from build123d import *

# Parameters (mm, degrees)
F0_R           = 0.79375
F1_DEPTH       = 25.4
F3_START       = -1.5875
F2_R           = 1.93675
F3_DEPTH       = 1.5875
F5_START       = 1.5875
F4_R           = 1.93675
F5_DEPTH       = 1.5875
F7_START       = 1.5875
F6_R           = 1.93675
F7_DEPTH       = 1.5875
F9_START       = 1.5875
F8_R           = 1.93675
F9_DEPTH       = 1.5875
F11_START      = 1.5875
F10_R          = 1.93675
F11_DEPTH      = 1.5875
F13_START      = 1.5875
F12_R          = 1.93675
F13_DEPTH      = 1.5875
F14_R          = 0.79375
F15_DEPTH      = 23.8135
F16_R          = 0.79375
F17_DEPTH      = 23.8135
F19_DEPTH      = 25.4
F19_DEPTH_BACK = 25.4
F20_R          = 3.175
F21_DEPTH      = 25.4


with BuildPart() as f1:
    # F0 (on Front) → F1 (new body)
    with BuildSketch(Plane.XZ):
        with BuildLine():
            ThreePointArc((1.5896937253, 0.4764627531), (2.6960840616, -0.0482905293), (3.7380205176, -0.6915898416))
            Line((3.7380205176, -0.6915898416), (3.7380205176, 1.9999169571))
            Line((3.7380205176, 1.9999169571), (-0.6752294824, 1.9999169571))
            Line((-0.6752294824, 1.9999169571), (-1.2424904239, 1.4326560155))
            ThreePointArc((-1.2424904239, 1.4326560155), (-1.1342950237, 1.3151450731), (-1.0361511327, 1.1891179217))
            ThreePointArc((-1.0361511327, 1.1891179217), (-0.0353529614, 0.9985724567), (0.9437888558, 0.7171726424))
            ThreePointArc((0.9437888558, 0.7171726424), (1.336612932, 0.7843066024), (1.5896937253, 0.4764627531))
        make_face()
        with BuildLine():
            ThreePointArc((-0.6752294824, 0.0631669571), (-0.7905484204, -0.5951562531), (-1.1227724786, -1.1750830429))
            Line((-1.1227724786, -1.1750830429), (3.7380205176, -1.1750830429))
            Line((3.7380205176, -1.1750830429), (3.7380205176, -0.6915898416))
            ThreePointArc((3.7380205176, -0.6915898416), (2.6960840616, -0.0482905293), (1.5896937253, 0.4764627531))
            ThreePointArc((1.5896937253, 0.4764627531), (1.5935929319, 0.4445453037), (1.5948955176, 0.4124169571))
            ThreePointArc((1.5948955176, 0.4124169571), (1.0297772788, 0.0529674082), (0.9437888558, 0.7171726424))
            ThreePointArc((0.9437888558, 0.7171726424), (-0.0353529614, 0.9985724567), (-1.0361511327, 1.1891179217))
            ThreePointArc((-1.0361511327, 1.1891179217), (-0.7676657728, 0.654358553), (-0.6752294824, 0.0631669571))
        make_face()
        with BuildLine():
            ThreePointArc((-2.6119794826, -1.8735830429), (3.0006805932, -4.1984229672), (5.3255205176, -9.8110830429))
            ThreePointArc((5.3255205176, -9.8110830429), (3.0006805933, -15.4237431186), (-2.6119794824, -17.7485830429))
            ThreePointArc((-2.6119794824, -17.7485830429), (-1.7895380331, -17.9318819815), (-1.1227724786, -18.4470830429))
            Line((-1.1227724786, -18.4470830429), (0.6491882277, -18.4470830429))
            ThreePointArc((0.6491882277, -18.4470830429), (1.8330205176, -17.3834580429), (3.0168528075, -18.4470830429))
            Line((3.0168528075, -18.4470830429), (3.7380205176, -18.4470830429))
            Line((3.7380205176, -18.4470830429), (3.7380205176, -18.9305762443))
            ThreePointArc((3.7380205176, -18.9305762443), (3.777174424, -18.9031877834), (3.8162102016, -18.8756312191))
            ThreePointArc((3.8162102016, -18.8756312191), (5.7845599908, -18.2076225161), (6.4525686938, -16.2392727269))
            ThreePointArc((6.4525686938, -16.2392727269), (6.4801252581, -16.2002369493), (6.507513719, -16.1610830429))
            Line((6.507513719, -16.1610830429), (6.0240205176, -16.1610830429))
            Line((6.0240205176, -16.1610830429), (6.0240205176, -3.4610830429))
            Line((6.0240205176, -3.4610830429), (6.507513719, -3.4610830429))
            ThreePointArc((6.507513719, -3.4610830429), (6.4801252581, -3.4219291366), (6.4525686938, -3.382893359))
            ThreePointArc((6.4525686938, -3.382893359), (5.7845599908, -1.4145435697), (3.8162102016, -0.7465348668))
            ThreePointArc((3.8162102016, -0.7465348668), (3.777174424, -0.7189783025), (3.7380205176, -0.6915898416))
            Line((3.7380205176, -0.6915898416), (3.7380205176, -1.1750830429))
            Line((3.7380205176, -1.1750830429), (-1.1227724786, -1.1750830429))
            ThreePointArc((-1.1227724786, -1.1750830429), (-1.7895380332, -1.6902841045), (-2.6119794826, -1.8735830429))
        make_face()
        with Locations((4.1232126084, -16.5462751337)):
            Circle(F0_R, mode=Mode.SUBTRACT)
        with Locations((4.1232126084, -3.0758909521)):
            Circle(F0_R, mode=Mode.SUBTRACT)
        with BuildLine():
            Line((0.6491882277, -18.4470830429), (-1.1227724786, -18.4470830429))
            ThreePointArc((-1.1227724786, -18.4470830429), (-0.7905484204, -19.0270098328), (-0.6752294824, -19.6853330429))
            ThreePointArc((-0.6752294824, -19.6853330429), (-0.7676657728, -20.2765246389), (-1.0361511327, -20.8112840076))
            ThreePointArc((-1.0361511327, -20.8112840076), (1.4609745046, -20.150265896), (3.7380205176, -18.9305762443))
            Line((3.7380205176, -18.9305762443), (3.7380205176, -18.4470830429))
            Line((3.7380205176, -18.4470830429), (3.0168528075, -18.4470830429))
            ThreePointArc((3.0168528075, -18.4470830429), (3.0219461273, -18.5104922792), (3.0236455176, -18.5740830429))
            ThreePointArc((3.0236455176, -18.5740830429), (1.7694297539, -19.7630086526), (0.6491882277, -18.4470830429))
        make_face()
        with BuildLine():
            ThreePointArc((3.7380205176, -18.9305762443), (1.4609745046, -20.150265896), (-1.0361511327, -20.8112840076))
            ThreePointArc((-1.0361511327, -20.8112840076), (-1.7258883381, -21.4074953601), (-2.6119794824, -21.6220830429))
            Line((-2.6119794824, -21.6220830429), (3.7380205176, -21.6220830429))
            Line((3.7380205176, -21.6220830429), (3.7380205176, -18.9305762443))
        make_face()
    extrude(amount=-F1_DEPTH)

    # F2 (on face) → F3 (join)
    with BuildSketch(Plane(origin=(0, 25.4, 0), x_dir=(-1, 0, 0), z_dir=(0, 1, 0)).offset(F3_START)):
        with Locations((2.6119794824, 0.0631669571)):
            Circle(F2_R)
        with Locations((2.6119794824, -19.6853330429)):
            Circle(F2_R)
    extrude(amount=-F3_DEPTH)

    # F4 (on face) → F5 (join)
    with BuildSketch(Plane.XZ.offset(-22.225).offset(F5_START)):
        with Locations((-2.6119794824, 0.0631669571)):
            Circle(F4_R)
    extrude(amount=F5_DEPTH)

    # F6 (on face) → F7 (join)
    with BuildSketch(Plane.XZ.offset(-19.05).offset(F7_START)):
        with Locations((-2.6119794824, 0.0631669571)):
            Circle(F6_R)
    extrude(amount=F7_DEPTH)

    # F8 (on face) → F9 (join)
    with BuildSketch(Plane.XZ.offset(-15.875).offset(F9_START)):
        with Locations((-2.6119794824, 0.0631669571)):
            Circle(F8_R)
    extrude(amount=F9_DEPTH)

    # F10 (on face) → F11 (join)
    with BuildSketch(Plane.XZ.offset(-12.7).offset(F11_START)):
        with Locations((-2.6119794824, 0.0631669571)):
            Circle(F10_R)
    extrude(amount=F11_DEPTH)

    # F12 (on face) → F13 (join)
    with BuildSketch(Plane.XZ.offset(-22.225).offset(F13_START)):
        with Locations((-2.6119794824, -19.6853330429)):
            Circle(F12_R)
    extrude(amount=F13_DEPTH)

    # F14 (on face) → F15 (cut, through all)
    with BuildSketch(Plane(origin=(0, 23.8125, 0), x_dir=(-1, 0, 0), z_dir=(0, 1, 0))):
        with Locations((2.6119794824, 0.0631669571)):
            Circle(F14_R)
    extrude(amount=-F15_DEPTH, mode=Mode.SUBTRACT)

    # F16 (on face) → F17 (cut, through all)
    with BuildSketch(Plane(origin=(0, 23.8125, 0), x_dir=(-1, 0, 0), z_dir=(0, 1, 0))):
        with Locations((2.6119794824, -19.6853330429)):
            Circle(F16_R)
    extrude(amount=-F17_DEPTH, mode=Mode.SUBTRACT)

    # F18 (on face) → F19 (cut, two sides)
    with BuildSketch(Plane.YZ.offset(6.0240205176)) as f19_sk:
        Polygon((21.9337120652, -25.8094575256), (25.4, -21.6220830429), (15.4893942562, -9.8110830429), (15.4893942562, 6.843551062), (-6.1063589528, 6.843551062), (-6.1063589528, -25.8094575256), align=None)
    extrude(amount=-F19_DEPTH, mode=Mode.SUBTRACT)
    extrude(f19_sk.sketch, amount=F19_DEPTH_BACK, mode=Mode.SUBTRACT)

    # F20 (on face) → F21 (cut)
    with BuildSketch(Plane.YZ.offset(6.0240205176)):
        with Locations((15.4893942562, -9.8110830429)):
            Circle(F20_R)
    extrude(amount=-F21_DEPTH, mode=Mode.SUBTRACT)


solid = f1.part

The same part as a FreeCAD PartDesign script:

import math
import FreeCAD as App
import Part
import Sketcher

V = App.Vector
Q = App.Units.Quantity


def add_polygon(sketch, points):
    """Adds a closed chain of lines whose ends are joined by coincident constraints."""
    first, n = sketch.GeometryCount, len(points)
    for a, b in zip(points, points[1:] + points[:1]):
        sketch.addGeometry(Part.LineSegment(App.Vector(*a, 0), App.Vector(*b, 0)), False)
    for i in range(n):
        sketch.addConstraint(Sketcher.Constraint("Coincident", first + i, 2, first + (i + 1) % n, 1))

doc = App.newDocument("Part")
params = doc.addObject("Spreadsheet::Sheet", "Params")
for row, (alias, value) in enumerate([
    ("sketch1_diameter", "0.0625 in"),
    ("sketch1_height", "0.5 in"),
    ("sketch1_radius", "0.3125 in"),
    ("sketch1_radius2", "0.4374999 in"),
    ("sketch1_radius3", "0.046875 in"),
    ("pad1_length", "1 in"),
    ("pad2_length", "0.0625 in"),
    ("pad3_length", "0.0625 in"),
    ("pad4_length", "0.0625 in"),
    ("pad5_length", "0.0625 in"),
    ("pad6_length", "0.0625 in"),
    ("pad7_length", "0.0625 in"),
    ("sketch8_diameter", "0.0625 in"),
    ("sketch9_diameter", "0.0625 in"),
    ("sketch11_diameter", "0.25 in"),
    ("pocket4_length", "1 in"),
], start=1):
    params.set(f"A{row}", alias)
    params.set(f"B{row}", "=" + value)
    params.setAlias(f"B{row}", alias)

body = doc.addObject("PartDesign::Body", "Body")

sketch1 = body.newObject("Sketcher::SketchObject", "Sketch")
sketch1.AttachmentSupport = (doc.getObject("XZ_Plane"), [""])
sketch1.MapMode = "FlatFace"
sketch1.addGeometry([
    Part.LineSegment(V(3.74, 2, 0), V(-0.68, 2, 0)),
    Part.LineSegment(V(-0.68, 2, 0), V(-1.24, 1.43, 0)),
    Part.ArcOfCircle(Part.Circle(V(-2.61, 0.06, 0), V(0, 0, 1), 1.94), math.radians(35.55), math.radians(45)),
    Part.ArcOfCircle(Part.Circle(V(-2.61, 0.06, 0), V(0, 0, 1), 1.94), math.radians(0), math.radians(36)),
    Part.ArcOfCircle(Part.Circle(V(-2.61, 0.06, 0), V(0, 0, 1), 1.94), math.radians(-40), math.radians(0)),
    Part.ArcOfCircle(Part.Circle(V(-2.61, 0.06, 0), V(0, 0, 1), 1.94), math.radians(-90), math.radians(-40)),
    Part.ArcOfCircle(Part.Circle(V(-2.61, -9.81, 0), V(0, 0, 1), 7.94), math.radians(0), math.radians(90)),
    Part.ArcOfCircle(Part.Circle(V(-2.61, -9.81, 0), V(0, 0, 1), 7.94), math.radians(-90), math.radians(0)),
    Part.ArcOfCircle(Part.Circle(V(-2.61, -19.69, 0), V(0, 0, 1), 1.94), math.radians(40), math.radians(90)),
    Part.ArcOfCircle(Part.Circle(V(-2.61, -19.69, 0), V(0, 0, 1), 1.94), math.radians(0), math.radians(40)),
    Part.ArcOfCircle(Part.Circle(V(-2.61, -19.69, 0), V(0, 0, 1), 1.94), math.radians(-36), math.radians(0)),
    Part.ArcOfCircle(Part.Circle(V(-2.61, -19.69, 0), V(0, 0, 1), 1.94), math.radians(-90), math.radians(-36)),
    Part.LineSegment(V(-2.61, -21.62, 0), V(3.74, -21.62, 0)),
    Part.LineSegment(V(3.74, -21.62, 0), V(3.74, -18.93, 0)),
    Part.ArcOfCircle(Part.Circle(V(-2.61, -9.81, 0), V(0, 0, 1), 11.11), math.radians(-55.15), math.radians(-54.66)),
    Part.ArcOfCircle(Part.Circle(V(4.12, -16.55, 0), V(0, 0, 1), 2.35), math.radians(-98), math.radians(8)),
    Part.ArcOfCircle(Part.Circle(V(-2.61, -9.81, 0), V(0, 0, 1), 11.11), math.radians(-35.34), math.radians(-34.85)),
    Part.LineSegment(V(6.51, -16.16, 0), V(6.02, -16.16, 0)),
    Part.LineSegment(V(6.02, -16.16, 0), V(6.02, -3.46, 0)),
    Part.LineSegment(V(6.02, -3.46, 0), V(6.51, -3.46, 0)),
    Part.ArcOfCircle(Part.Circle(V(-2.61, -9.81, 0), V(0, 0, 1), 11.11), math.radians(34.85), math.radians(35.34)),
    Part.ArcOfCircle(Part.Circle(V(4.12, -3.08, 0), V(0, 0, 1), 2.35), math.radians(-8), math.radians(98)),
    Part.ArcOfCircle(Part.Circle(V(-2.61, -9.81, 0), V(0, 0, 1), 11.11), math.radians(54.66), math.radians(55.15)),
    Part.LineSegment(V(3.74, -0.69, 0), V(3.74, 2, 0)),
    Part.ArcOfCircle(Part.Circle(V(1.83, -18.57, 0), V(0, 0, 1), 1.19), math.radians(6), math.radians(174)),
    Part.ArcOfCircle(Part.Circle(V(1.83, -18.57, 0), V(0, 0, 1), 1.19), math.radians(0), math.radians(6.12)),
    Part.ArcOfCircle(Part.Circle(V(1.83, -18.57, 0), V(0, 0, 1), 1.19), math.radians(174), math.radians(360)),
    Part.Circle(V(4.12, -16.55, 0), V(0, 0, 1), 0.79),
    Part.ArcOfCircle(Part.Circle(V(1.2, 0.41, 0), V(0, 0, 1), 0.4), math.radians(9), math.radians(130)),
    Part.ArcOfCircle(Part.Circle(V(1.2, 0.41, 0), V(0, 0, 1), 0.4), math.radians(0), math.radians(9.29)),
    Part.ArcOfCircle(Part.Circle(V(1.2, 0.41, 0), V(0, 0, 1), 0.4), math.radians(130), math.radians(360)),
    Part.Circle(V(4.12, -3.08, 0), V(0, 0, 1), 0.79),
], False)
sketch1.addConstraint([
    Sketcher.Constraint("Coincident", 0, 2, 1, 1),
    Sketcher.Constraint("Coincident", 1, 2, 2, 2),
    Sketcher.Constraint("Tangent", 2, 1, 3, 2),
    Sketcher.Constraint("Tangent", 3, 1, 4, 2),
    Sketcher.Constraint("Tangent", 4, 1, 5, 2),
    Sketcher.Constraint("Tangent", 5, 1, 6, 2),
    Sketcher.Constraint("Tangent", 6, 1, 7, 2),
    Sketcher.Constraint("Tangent", 7, 1, 8, 2),
    Sketcher.Constraint("Tangent", 8, 1, 9, 2),
    Sketcher.Constraint("Tangent", 9, 1, 10, 2),
    Sketcher.Constraint("Tangent", 10, 1, 11, 2),
    Sketcher.Constraint("Tangent", 11, 1, 12, 1),
    Sketcher.Constraint("Coincident", 12, 2, 13, 1),
    Sketcher.Constraint("Coincident", 13, 2, 14, 1),
    Sketcher.Constraint("Coincident", 14, 2, 15, 1),
    Sketcher.Constraint("Coincident", 15, 2, 16, 1),
    Sketcher.Constraint("Coincident", 16, 2, 17, 1),
    Sketcher.Constraint("Coincident", 17, 2, 18, 1),
    Sketcher.Constraint("Coincident", 18, 2, 19, 1),
    Sketcher.Constraint("Coincident", 19, 2, 20, 1),
    Sketcher.Constraint("Coincident", 20, 2, 21, 1),
    Sketcher.Constraint("Coincident", 21, 2, 22, 1),
    Sketcher.Constraint("Coincident", 22, 2, 23, 1),
    Sketcher.Constraint("Coincident", 23, 2, 0, 1),
    Sketcher.Constraint("Tangent", 24, 1, 25, 2),
    Sketcher.Constraint("Tangent", 25, 1, 26, 2),
    Sketcher.Constraint("Tangent", 26, 1, 24, 2),
    Sketcher.Constraint("Tangent", 28, 1, 29, 2),
    Sketcher.Constraint("Tangent", 29, 1, 30, 2),
    Sketcher.Constraint("Tangent", 30, 1, 28, 2),
    Sketcher.Constraint("Horizontal", 0),
    Sketcher.Constraint("Horizontal", 12),
    Sketcher.Constraint("Vertical", 13),
    Sketcher.Constraint("Horizontal", 17),
    Sketcher.Constraint("Vertical", 18),
    Sketcher.Constraint("Horizontal", 19),
    Sketcher.Constraint("Vertical", 23),
    Sketcher.Constraint("Coincident", 4, 3, 2, 3),
    Sketcher.Constraint("Coincident", 10, 3, 8, 3),
    Sketcher.Constraint("Coincident", 14, 3, 6, 3),
    Sketcher.Constraint("Coincident", 16, 3, 6, 3),
    Sketcher.Constraint("Coincident", 20, 3, 6, 3),
    Sketcher.Constraint("Coincident", 22, 3, 6, 3),
    Sketcher.Constraint("Coincident", 27, 3, 15, 3),
    Sketcher.Constraint("Coincident", 31, 3, 21, 3),
    Sketcher.Constraint("Equal", 4, 5),
    Sketcher.Constraint("Equal", 6, 7),
    Sketcher.Constraint("Equal", 5, 8),
    Sketcher.Constraint("Equal", 10, 11),
    Sketcher.Constraint("Equal", 14, 16),
    Sketcher.Constraint("Equal", 15, 21),
    Sketcher.Constraint("Equal", 16, 22),
    Sketcher.Constraint("Equal", 27, 31),
    Sketcher.Constraint("Horizontal", 5, 3, 3, 1),
    Sketcher.Constraint("Horizontal", 20, 3, 6, 1),
    Sketcher.Constraint("Horizontal", 11, 3, 9, 1),
    Sketcher.Constraint("Horizontal", 8, 1, 24, 1),
    Sketcher.Constraint("Horizontal", 26, 3, 25, 1),
    Sketcher.Constraint("Horizontal", 24, 1, 26, 1),
    Sketcher.Constraint("Horizontal", 30, 3, 29, 1),
    Sketcher.Constraint("Vertical", 5, 3, 6, 3),
    Sketcher.Constraint("Vertical", 7, 3, 8, 3),
    Sketcher.Constraint("Vertical", 15, 3, 21, 3),
    Sketcher.Constraint("Vertical", 0, 2, 3, 1),
    Sketcher.Constraint("Vertical", 4, 1, 8, 1),
    Sketcher.Constraint("Vertical", 2, 1, 10, 1),
    Sketcher.Constraint("Vertical", 16, 2, 19, 2),
    Sketcher.Constraint("Vertical", 15, 2, 20, 2),
    Sketcher.Constraint("Vertical", 14, 2, 21, 2),
    Sketcher.Constraint("Vertical", 13, 2, 22, 2),
    Sketcher.Constraint("Equal", 13, 23),
    Sketcher.Constraint("Diameter", 27, Q("0.0625 in")),
    Sketcher.Constraint("DistanceY", 18, 1, 18, 2, Q("0.5 in")),
    Sketcher.Constraint("Angle", 1, Q("-135 deg")),
    Sketcher.Constraint("Radius", 6, Q("0.3125 in")),
    Sketcher.Constraint("Radius", 14, Q("0.4374999 in")),
    Sketcher.Constraint("Radius", 24, Q("0.046875 in")),
    Sketcher.Constraint("Radius", 28, Q("0.015625 in")),
    Sketcher.Constraint("DistanceX", 12, 1, 12, 2, Q("0.25 in")),
    Sketcher.Constraint("Radius", 15, Q("0.0925 in")),
    Sketcher.Constraint("DistanceX", 28, 3, 22, 2, Q("0.1 in")),
    Sketcher.Constraint("DistanceY", 12, 2, 25, 3, Q("0.12 in")),
    Sketcher.Constraint("DistanceX", 28, 3, 18, 2, Q("0.19 in")),
    Sketcher.Constraint("Radius", 2, Q("1.93675 mm")),
    Sketcher.Constraint("DistanceX", 9, 3, 24, 3, Q("0.175 in")),
    Sketcher.Constraint("DistanceY", 29, 3, 0, 2, Q("0.0625 in")),
    Sketcher.Constraint("DistanceY", 25, 3, 24, 1, Q("0.005 in")),
    Sketcher.Constraint("DistanceY", 2, 1, 0, 2, Q("0.810799 mm")),
    Sketcher.Constraint("DistanceY", 13, 2, 15, 3, Q("2.384301 mm")),
    Sketcher.Constraint("DistanceX", 15, 3, 16, 2, Q("2.384301 mm")),
    Sketcher.Constraint("DistanceX", 28, 1, 29, 1, Q("0.005202 mm")),
    Sketcher.Constraint("DistanceX", 2, 3, -1, 1, Q("2.611979 mm")),
    Sketcher.Constraint("DistanceY", 21, 3, -1, 1, Q("3.075891 mm")),
    Sketcher.Constraint("DistanceX", -1, 1, 30, 1, Q("0.943789 mm")),
])
sketch1.setExpression("Constraints[71]", "Params.sketch1_diameter")
sketch1.setExpression("Constraints[72]", "Params.sketch1_height")
sketch1.setExpression("Constraints[74]", "Params.sketch1_radius")
sketch1.setExpression("Constraints[75]", "Params.sketch1_radius2")
sketch1.setExpression("Constraints[76]", "Params.sketch1_radius3")
pad1 = body.newObject("PartDesign::Pad", "Pad")
pad1.Profile = sketch1
pad1.setExpression("Length", "Params.pad1_length")
pad1.Reversed = True

sketch2 = body.newObject("Sketcher::SketchObject", "Sketch001")
sketch2.AttachmentSupport = (doc.getObject("XZ_Plane"), [""])
sketch2.MapMode = "FlatFace"
sketch2.AttachmentOffset = App.Placement(V(0, 0, -0.9375 * 25.4), App.Rotation())
sketch2.addGeometry([
    Part.Circle(V(-2.6, 0.1, 0), V(0, 0, 1), 1.9),
    Part.Circle(V(-2.6, -19.7, 0), V(0, 0, 1), 1.9),
], False)
sketch2.addConstraint([
    Sketcher.Constraint("Equal", 0, 1),
    Sketcher.Constraint("Vertical", 0, 3, 1, 3),
    Sketcher.Constraint("Diameter", 0, Q("0.1525 in")),
    Sketcher.Constraint("DistanceY", 1, 3, 0, 3, Q("0.7775 in")),
    Sketcher.Constraint("DistanceX", 0, 3, -1, 1, Q("2.611979 mm")),
    Sketcher.Constraint("DistanceY", -1, 1, 0, 3, Q("0.063167 mm")),
])
pad2 = body.newObject("PartDesign::Pad", "Pad001")
pad2.Profile = sketch2
pad2.setExpression("Length", "Params.pad2_length")

sketch3 = body.newObject("Sketcher::SketchObject", "Sketch002")
sketch3.AttachmentSupport = (doc.getObject("XZ_Plane"), [""])
sketch3.MapMode = "FlatFace"
sketch3.AttachmentOffset = App.Placement(V(0, 0, -0.8125 * 25.4), App.Rotation())
sketch3.addGeometry(Part.Circle(V(-2.6, 0.1, 0), V(0, 0, 1), 1.9), False)
sketch3.addConstraint([
    Sketcher.Constraint("Diameter", 0, Q("0.1525 in")),
    Sketcher.Constraint("DistanceX", 0, 3, -1, 1, Q("2.611979 mm")),
    Sketcher.Constraint("DistanceY", -1, 1, 0, 3, Q("0.063167 mm")),
])
pad3 = body.newObject("PartDesign::Pad", "Pad002")
pad3.Profile = sketch3
pad3.setExpression("Length", "Params.pad3_length")

sketch4 = body.newObject("Sketcher::SketchObject", "Sketch003")
sketch4.AttachmentSupport = (doc.getObject("XZ_Plane"), [""])
sketch4.MapMode = "FlatFace"
sketch4.AttachmentOffset = App.Placement(V(0, 0, -0.6875 * 25.4), App.Rotation())
sketch4.addGeometry(Part.Circle(V(-2.6, 0.1, 0), V(0, 0, 1), 1.9), False)
sketch4.addConstraint([
    Sketcher.Constraint("Diameter", 0, Q("0.1525 in")),
    Sketcher.Constraint("DistanceX", 0, 3, -1, 1, Q("2.611979 mm")),
    Sketcher.Constraint("DistanceY", -1, 1, 0, 3, Q("0.063167 mm")),
])
pad4 = body.newObject("PartDesign::Pad", "Pad003")
pad4.Profile = sketch4
pad4.setExpression("Length", "Params.pad4_length")

sketch5 = body.newObject("Sketcher::SketchObject", "Sketch004")
sketch5.AttachmentSupport = (doc.getObject("XZ_Plane"), [""])
sketch5.MapMode = "FlatFace"
sketch5.AttachmentOffset = App.Placement(V(0, 0, -0.5625 * 25.4), App.Rotation())
sketch5.addGeometry(Part.Circle(V(-2.6, 0.1, 0), V(0, 0, 1), 1.9), False)
sketch5.addConstraint([
    Sketcher.Constraint("Diameter", 0, Q("0.1525 in")),
    Sketcher.Constraint("DistanceX", 0, 3, -1, 1, Q("2.611979 mm")),
    Sketcher.Constraint("DistanceY", -1, 1, 0, 3, Q("0.063167 mm")),
])
pad5 = body.newObject("PartDesign::Pad", "Pad004")
pad5.Profile = sketch5
pad5.setExpression("Length", "Params.pad5_length")

sketch6 = body.newObject("Sketcher::SketchObject", "Sketch005")
sketch6.AttachmentSupport = (doc.getObject("XZ_Plane"), [""])
sketch6.MapMode = "FlatFace"
sketch6.AttachmentOffset = App.Placement(V(0, 0, -0.4375 * 25.4), App.Rotation())
sketch6.addGeometry(Part.Circle(V(-2.6, 0.1, 0), V(0, 0, 1), 1.9), False)
sketch6.addConstraint([
    Sketcher.Constraint("Diameter", 0, Q("0.1525 in")),
    Sketcher.Constraint("DistanceX", 0, 3, -1, 1, Q("2.611979 mm")),
    Sketcher.Constraint("DistanceY", -1, 1, 0, 3, Q("0.063167 mm")),
])
pad6 = body.newObject("PartDesign::Pad", "Pad005")
pad6.Profile = sketch6
pad6.setExpression("Length", "Params.pad6_length")

sketch7 = body.newObject("Sketcher::SketchObject", "Sketch006")
sketch7.AttachmentSupport = (doc.getObject("XZ_Plane"), [""])
sketch7.MapMode = "FlatFace"
sketch7.AttachmentOffset = App.Placement(V(0, 0, -0.8125 * 25.4), App.Rotation())
sketch7.addGeometry(Part.Circle(V(-2.6, -19.7, 0), V(0, 0, 1), 1.9), False)
sketch7.addConstraint([
    Sketcher.Constraint("Diameter", 0, Q("0.1525 in")),
    Sketcher.Constraint("DistanceX", 0, 3, -1, 1, Q("2.611979 mm")),
    Sketcher.Constraint("DistanceY", 0, 3, -1, 1, Q("19.685333 mm")),
])
pad7 = body.newObject("PartDesign::Pad", "Pad006")
pad7.Profile = sketch7
pad7.setExpression("Length", "Params.pad7_length")

sketch8 = body.newObject("Sketcher::SketchObject", "Sketch007")
sketch8.AttachmentSupport = (doc.getObject("XZ_Plane"), [""])
sketch8.MapMode = "FlatFace"
sketch8.AttachmentOffset = App.Placement(V(0, 0, -0.9375 * 25.4), App.Rotation())
sketch8.addGeometry(Part.Circle(V(-2.6, 0.1, 0), V(0, 0, 1), 0.8), False)
sketch8.addConstraint([
    Sketcher.Constraint("Diameter", 0, Q("0.0625 in")),
    Sketcher.Constraint("DistanceX", 0, 3, -1, 1, Q("2.611979 mm")),
    Sketcher.Constraint("DistanceY", -1, 1, 0, 3, Q("0.063167 mm")),
])
sketch8.setExpression("Constraints[0]", "Params.sketch8_diameter")
pocket1 = body.newObject("PartDesign::Pocket", "Pocket")
pocket1.Profile = sketch8
pocket1.Type = "ThroughAll"
pocket1.Reversed = True

sketch9 = body.newObject("Sketcher::SketchObject", "Sketch008")
sketch9.AttachmentSupport = (doc.getObject("XZ_Plane"), [""])
sketch9.MapMode = "FlatFace"
sketch9.AttachmentOffset = App.Placement(V(0, 0, -0.9375 * 25.4), App.Rotation())
sketch9.addGeometry(Part.Circle(V(-2.6, -19.7, 0), V(0, 0, 1), 0.8), False)
sketch9.addConstraint([
    Sketcher.Constraint("Diameter", 0, Q("0.0625 in")),
    Sketcher.Constraint("DistanceX", 0, 3, -1, 1, Q("2.611979 mm")),
    Sketcher.Constraint("DistanceY", 0, 3, -1, 1, Q("19.685333 mm")),
])
sketch9.setExpression("Constraints[0]", "Params.sketch9_diameter")
pocket2 = body.newObject("PartDesign::Pocket", "Pocket001")
pocket2.Profile = sketch9
pocket2.Type = "ThroughAll"
pocket2.Reversed = True

sketch10 = body.newObject("Sketcher::SketchObject", "Sketch009")
sketch10.AttachmentSupport = (doc.getObject("YZ_Plane"), [""])
sketch10.MapMode = "FlatFace"
sketch10.AttachmentOffset = App.Placement(V(0, 0, 6.024021), App.Rotation())
add_polygon(sketch10, [(22, -26), (25, -22), (15, -10), (15, 7), (-6, 7), (-6, -26)])
sketch10.addConstraint([
    Sketcher.Constraint("Vertical", 2),
    Sketcher.Constraint("Horizontal", 3),
    Sketcher.Constraint("Vertical", 4),
    Sketcher.Constraint("Horizontal", 5),
    Sketcher.Constraint("DistanceX", -1, 1, 0, 2, Q("1 in")),
    Sketcher.Constraint("Angle", 1, Q("130 deg")),
    Sketcher.Constraint("DistanceY", 0, 2, 1, 2, Q("0.465 in")),
    Sketcher.Constraint("DistanceX", 5, 1, 5, 2, Q("28.040071 mm")),
    Sketcher.Constraint("DistanceY", 4, 2, 4, 1, Q("32.653009 mm")),
    Sketcher.Constraint("DistanceX", 3, 2, 3, 1, Q("21.595753 mm")),
    Sketcher.Constraint("DistanceY", 2, 1, 2, 2, Q("16.654634 mm")),
    Sketcher.Constraint("DistanceY", -1, 1, 2, 2, Q("6.843551 mm")),
])
pocket3 = body.newObject("PartDesign::Pocket", "Pocket002")
pocket3.Profile = sketch10
pocket3.Type = "ThroughAll"
pocket3.Midplane = True

sketch11 = body.newObject("Sketcher::SketchObject", "Sketch010")
sketch11.AttachmentSupport = (doc.getObject("YZ_Plane"), [""])
sketch11.MapMode = "FlatFace"
sketch11.AttachmentOffset = App.Placement(V(0, 0, 6.024021), App.Rotation())
sketch11.addGeometry(Part.Circle(V(15.5, -9.8, 0), V(0, 0, 1), 3.2), False)
sketch11.addConstraint([
    Sketcher.Constraint("Diameter", 0, Q("0.25 in")),
    Sketcher.Constraint("DistanceX", -1, 1, 0, 3, Q("15.489394 mm")),
    Sketcher.Constraint("DistanceY", 0, 3, -1, 1, Q("9.811083 mm")),
])
sketch11.setExpression("Constraints[0]", "Params.sketch11_diameter")
pocket4 = body.newObject("PartDesign::Pocket", "Pocket003")
pocket4.Profile = sketch11
pocket4.setExpression("Length", "Params.pocket4_length")

doc.recompute()
